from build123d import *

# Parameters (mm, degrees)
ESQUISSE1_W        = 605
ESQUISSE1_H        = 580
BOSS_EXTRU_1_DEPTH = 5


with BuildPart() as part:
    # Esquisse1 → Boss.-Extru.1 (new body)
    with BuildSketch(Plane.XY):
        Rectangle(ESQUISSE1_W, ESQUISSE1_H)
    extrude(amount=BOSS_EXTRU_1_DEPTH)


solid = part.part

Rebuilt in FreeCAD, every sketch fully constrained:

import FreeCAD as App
import Part
import Sketcher

V = App.Vector
Q = App.Units.Quantity


def add_polygon(sketch, points):
    """Adds a closed chain of lines whose ends are joined by coincident constraints."""
    first, n = sketch.GeometryCount, len(points)
    for a, b in zip(points, points[1:] + points[:1]):
        sketch.addGeometry(Part.LineSegment(App.Vector(*a, 0), App.Vector(*b, 0)), False)
    for i in range(n):
        sketch.addConstraint(Sketcher.Constraint("Coincident", first + i, 2, first + (i + 1) % n, 1))

doc = App.newDocument("Part")
body = doc.addObject("PartDesign::Body", "Body")

sketch1 = body.newObject("Sketcher::SketchObject", "Sketch")
sketch1.AttachmentSupport = (doc.getObject("XY_Plane"), [""])
sketch1.MapMode = "FlatFace"
add_polygon(sketch1, [(-302, 290), (-302, -290), (302, -290), (302, 290)])
sketch1.addConstraint([
    Sketcher.Constraint("Vertical", 0),
    Sketcher.Constraint("Horizontal", 1),
    Sketcher.Constraint("Vertical", 2),
    Sketcher.Constraint("Horizontal", 3),
    Sketcher.Constraint("Symmetric", 0, 2, 2, 2, -1, 1),
    Sketcher.Constraint("DistanceX", 1, 1, 1, 2, Q("605 mm")),
    Sketcher.Constraint("DistanceY", 0, 2, 0, 1, Q("580 mm")),
])
pad1 = body.newObject("PartDesign::Pad", "Pad")
pad1.Profile = sketch1
pad1.Length = 5

doc.recompute()
